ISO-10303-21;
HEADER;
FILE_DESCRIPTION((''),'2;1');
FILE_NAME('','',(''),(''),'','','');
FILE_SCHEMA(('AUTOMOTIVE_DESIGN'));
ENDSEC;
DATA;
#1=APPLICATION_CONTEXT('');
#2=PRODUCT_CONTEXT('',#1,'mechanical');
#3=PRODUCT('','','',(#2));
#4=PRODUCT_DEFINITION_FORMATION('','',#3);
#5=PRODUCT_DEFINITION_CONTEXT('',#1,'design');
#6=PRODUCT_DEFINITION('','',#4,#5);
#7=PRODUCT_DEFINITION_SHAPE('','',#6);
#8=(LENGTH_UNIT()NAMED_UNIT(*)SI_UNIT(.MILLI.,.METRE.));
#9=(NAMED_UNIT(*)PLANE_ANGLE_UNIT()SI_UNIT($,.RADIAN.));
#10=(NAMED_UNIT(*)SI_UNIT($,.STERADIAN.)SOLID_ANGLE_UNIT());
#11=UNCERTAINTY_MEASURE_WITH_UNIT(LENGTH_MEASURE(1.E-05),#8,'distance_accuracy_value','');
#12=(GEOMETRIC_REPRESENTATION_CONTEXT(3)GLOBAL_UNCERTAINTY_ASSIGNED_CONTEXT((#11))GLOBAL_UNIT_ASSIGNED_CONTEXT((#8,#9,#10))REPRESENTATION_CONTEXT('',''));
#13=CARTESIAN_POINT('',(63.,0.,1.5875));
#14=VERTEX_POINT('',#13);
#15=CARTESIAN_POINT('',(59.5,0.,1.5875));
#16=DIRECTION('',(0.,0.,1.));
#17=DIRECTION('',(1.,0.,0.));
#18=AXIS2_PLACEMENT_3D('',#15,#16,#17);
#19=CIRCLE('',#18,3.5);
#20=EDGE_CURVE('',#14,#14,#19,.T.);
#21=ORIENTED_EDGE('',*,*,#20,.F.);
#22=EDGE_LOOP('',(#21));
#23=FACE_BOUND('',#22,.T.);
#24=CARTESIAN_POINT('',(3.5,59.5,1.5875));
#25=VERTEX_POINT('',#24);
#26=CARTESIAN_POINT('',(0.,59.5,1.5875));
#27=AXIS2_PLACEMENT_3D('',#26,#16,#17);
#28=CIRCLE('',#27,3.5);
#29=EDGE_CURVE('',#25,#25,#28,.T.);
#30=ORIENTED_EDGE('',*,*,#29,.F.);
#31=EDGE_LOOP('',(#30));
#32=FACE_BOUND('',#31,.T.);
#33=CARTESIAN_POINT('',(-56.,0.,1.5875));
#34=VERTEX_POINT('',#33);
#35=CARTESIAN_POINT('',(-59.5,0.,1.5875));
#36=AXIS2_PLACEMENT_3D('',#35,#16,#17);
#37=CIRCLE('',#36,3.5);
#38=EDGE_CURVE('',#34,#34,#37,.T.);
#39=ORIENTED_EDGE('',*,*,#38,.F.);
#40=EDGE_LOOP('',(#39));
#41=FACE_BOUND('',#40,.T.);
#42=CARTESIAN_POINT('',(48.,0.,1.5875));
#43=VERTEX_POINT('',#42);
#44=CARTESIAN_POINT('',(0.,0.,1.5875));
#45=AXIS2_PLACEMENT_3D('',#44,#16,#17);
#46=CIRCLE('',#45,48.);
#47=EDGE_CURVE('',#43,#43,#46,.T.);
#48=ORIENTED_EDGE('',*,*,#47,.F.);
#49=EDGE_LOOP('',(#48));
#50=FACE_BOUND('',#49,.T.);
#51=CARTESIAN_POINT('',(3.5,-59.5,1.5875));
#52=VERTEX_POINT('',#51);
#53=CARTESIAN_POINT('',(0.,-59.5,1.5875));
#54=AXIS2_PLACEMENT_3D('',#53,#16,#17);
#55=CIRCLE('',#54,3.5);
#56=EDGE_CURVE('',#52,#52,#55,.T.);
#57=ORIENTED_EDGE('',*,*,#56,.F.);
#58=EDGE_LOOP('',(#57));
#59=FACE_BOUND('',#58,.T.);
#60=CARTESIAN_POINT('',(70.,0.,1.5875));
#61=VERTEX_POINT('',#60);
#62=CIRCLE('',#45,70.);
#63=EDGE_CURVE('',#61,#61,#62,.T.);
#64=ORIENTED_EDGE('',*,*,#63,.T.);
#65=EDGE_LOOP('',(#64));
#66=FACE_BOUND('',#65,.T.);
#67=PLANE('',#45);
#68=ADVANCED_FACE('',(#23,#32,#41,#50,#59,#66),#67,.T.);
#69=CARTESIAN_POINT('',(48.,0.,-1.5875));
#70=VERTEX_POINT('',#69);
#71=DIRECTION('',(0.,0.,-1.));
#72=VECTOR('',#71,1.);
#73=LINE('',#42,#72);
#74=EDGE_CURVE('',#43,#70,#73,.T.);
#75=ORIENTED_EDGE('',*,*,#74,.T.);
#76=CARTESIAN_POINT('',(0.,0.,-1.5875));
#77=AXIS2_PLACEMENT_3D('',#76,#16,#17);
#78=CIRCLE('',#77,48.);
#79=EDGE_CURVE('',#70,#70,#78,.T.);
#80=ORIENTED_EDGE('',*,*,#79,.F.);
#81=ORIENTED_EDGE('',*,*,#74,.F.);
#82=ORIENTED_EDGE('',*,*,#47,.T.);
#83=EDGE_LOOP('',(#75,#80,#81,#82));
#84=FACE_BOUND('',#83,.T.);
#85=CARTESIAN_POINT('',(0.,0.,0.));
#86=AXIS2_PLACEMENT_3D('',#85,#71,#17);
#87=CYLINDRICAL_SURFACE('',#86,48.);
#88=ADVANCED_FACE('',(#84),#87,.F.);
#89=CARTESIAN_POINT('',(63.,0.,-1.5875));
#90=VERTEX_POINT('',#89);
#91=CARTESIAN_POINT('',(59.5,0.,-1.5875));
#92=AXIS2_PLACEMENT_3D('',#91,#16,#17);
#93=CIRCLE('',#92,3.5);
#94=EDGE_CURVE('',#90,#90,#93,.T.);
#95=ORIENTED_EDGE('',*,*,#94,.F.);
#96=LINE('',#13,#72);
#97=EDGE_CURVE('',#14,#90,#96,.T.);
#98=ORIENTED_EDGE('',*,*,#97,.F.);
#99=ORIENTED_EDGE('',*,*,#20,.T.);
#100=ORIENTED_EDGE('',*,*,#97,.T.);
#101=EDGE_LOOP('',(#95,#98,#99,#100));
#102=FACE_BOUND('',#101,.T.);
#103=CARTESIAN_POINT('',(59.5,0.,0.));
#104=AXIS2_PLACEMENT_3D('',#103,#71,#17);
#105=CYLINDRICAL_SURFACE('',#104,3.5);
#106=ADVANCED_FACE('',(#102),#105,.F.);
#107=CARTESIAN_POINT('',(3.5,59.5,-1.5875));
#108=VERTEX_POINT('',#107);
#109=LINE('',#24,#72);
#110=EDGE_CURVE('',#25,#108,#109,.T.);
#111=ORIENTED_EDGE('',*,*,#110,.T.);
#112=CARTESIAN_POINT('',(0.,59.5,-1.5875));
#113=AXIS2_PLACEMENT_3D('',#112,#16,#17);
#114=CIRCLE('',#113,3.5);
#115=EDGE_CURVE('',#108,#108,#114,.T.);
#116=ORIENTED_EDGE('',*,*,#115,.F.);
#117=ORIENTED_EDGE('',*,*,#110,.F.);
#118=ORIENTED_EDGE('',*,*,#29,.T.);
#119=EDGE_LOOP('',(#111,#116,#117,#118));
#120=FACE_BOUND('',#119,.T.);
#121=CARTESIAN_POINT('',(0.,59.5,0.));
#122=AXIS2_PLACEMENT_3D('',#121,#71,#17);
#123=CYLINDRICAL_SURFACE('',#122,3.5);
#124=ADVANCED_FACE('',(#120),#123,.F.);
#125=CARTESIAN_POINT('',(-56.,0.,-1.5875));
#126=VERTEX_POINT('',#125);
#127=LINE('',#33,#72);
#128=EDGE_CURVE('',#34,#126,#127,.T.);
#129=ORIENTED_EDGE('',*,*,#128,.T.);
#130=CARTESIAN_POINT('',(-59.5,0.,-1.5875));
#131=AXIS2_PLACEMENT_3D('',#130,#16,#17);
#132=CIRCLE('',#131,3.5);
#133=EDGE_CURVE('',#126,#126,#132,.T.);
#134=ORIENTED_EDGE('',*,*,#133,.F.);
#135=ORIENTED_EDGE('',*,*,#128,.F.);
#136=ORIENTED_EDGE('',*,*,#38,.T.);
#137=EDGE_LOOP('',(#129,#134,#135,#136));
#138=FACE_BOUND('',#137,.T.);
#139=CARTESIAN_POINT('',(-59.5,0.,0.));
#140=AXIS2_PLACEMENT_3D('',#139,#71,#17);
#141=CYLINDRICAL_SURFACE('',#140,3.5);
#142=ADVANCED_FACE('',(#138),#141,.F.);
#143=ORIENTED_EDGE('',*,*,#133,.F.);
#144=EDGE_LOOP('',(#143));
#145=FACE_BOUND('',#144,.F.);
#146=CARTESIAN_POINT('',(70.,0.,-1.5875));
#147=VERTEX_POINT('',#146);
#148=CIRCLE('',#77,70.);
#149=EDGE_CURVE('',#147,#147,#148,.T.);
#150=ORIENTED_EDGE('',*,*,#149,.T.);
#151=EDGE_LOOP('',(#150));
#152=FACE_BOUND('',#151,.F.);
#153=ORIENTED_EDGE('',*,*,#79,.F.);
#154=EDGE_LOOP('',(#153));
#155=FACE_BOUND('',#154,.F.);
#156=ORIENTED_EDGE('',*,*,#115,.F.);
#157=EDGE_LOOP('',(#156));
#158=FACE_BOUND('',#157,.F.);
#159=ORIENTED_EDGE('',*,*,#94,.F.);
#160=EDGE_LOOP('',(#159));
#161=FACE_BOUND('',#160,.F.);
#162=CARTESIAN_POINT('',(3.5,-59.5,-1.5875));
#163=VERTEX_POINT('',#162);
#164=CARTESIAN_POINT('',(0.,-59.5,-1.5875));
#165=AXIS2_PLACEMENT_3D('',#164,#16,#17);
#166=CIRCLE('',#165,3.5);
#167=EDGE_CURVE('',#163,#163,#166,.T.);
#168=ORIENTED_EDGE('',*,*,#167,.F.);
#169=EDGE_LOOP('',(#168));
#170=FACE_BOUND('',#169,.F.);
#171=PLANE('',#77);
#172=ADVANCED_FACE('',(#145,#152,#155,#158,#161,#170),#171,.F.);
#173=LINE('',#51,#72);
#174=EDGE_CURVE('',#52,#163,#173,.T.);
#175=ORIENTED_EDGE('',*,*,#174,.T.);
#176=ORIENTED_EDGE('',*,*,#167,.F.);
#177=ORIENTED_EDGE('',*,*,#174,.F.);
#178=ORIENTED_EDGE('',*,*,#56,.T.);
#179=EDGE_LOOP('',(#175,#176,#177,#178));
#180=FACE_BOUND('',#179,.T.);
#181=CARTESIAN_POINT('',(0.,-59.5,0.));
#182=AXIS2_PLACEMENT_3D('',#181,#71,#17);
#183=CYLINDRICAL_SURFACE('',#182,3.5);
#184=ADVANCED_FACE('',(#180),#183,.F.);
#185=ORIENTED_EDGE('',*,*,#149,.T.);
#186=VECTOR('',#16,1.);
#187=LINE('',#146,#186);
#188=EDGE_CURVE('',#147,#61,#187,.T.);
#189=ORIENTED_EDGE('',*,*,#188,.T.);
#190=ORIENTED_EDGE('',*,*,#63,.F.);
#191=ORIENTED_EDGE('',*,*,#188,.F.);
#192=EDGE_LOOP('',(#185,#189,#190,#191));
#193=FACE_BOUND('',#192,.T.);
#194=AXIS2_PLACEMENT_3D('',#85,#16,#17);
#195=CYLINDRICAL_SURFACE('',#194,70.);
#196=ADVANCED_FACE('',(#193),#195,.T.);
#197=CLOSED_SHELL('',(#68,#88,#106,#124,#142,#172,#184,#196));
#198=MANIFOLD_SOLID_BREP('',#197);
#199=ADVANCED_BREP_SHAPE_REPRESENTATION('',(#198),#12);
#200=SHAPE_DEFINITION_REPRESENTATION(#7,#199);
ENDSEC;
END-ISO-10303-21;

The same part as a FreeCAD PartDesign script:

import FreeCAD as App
import Part
import Sketcher

V = App.Vector
Q = App.Units.Quantity

doc = App.newDocument("Part")
params = doc.addObject("Spreadsheet::Sheet", "Params")
for row, (alias, value) in enumerate([
    ("sketch1_diameter", "140 mm"),
    ("sketch1_diameter2", "7 mm"),
    ("sketch1_diameter3", "96 mm"),
    ("pad1_length", "3.175 mm"),
], start=1):
    params.set(f"A{row}", alias)
    params.set(f"B{row}", "=" + value)
    params.setAlias(f"B{row}", alias)

body = doc.addObject("PartDesign::Body", "Body")

sketch1 = doc.addObject("Sketcher::SketchObject", "Sketch")
body.addObject(sketch1)
sketch1.AttachmentSupport = (doc.XY_Plane, [""])
sketch1.MapMode = "FlatFace"
sketch1.addGeometry([
    Part.Circle(V(0, 0, 0), V(0, 0, 1), 70),
    Part.Circle(V(0, -59.5, 0), V(0, 0, 1), 3.5),
    Part.Circle(V(-59.5, 0, 0), V(0, 0, 1), 3.5),
    Part.Circle(V(0, 0, 0), V(0, 0, 1), 48),
    Part.Circle(V(59.5, 0, 0), V(0, 0, 1), 3.5),
    Part.Circle(V(0, 59.5, 0), V(0, 0, 1), 3.5),
], False)
sketch1.addConstraint([
    Sketcher.Constraint("Coincident", 0, 3, -1, 1),
    Sketcher.Constraint("Coincident", 3, 3, -1, 1),
    Sketcher.Constraint("Equal", 1, 2),
    Sketcher.Constraint("Equal", 2, 4),
    Sketcher.Constraint("Equal", 4, 5),
    Sketcher.Constraint("Symmetric", 2, 3, 4, 3, -1, 1),
    Sketcher.Constraint("Symmetric", 1, 3, 5, 3, -1, 1),
    Sketcher.Constraint("PointOnObject", 1, 3, -2),
    Sketcher.Constraint("PointOnObject", 2, 3, -1),
    Sketcher.Constraint("Diameter", 0, Q("140 mm")),
    Sketcher.Constraint("Diameter", 1, Q("7 mm")),
    Sketcher.Constraint("Diameter", 3, Q("96 mm")),
    Sketcher.Constraint("DistanceX", 2, 3, 4, 3, Q("119 mm")),
    Sketcher.Constraint("DistanceY", 1, 3, 5, 3, Q("119 mm")),
])
sketch1.setExpression("Constraints[9]", "Params.sketch1_diameter")
sketch1.setExpression("Constraints[10]", "Params.sketch1_diameter2")
sketch1.setExpression("Constraints[11]", "Params.sketch1_diameter3")
pad1 = doc.addObject("PartDesign::Pad", "Pad")
body.addObject(pad1)
pad1.Profile = sketch1
pad1.setExpression("Length", "Params.pad1_length")
pad1.Midplane = True

doc.recompute()
